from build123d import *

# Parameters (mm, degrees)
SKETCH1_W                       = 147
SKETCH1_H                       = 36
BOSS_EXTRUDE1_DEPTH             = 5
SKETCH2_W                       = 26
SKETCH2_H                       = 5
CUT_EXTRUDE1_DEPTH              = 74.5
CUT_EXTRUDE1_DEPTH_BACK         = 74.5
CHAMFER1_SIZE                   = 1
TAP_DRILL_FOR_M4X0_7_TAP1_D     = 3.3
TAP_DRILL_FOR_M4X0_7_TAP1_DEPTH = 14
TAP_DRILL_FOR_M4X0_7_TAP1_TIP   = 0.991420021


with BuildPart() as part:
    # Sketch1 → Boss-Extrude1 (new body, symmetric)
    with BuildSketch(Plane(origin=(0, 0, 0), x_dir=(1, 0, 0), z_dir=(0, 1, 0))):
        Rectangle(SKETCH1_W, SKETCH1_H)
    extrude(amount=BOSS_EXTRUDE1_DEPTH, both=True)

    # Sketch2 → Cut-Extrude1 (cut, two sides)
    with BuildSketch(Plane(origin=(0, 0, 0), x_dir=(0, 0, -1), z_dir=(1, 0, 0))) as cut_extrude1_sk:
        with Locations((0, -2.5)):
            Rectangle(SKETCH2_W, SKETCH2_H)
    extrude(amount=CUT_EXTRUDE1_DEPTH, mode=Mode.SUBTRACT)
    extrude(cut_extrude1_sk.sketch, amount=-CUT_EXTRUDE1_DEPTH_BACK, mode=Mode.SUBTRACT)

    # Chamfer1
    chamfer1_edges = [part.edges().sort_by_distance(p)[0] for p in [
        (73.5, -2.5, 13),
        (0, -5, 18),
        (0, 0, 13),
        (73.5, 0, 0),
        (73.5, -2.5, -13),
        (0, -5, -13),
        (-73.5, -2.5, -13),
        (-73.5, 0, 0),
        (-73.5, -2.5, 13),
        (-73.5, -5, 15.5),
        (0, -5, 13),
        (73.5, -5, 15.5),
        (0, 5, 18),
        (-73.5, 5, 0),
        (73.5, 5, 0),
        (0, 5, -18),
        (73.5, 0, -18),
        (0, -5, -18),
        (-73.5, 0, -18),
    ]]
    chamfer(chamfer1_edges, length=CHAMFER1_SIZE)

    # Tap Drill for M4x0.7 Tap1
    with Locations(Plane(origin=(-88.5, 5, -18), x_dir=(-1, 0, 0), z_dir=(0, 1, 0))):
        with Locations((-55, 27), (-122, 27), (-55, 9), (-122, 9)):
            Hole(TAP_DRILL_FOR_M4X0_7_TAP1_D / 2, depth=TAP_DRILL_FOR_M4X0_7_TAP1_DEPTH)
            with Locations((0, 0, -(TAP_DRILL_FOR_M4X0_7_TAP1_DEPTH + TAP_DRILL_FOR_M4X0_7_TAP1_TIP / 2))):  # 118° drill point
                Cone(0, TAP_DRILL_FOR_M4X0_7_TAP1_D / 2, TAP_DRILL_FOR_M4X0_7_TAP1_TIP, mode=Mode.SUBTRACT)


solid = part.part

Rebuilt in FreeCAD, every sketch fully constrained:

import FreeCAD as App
import Part
import Sketcher
from FreeCAD import Vector
Q = App.Units.Quantity


def edges_at(feature, points):
    """Names of the edges that pass closest to the given points."""
    edges = feature.Shape.Edges
    near = lambda p: min(range(len(edges)), key=lambda i: edges[i].distToShape(Part.Vertex(*p))[0])
    return sorted({f"Edge{near(p) + 1}" for p in points})

doc = App.newDocument("Part")
params = doc.addObject("Spreadsheet::Sheet", "Params")
for row, (alias, value) in enumerate([
    ("sketch1_width", "147 mm"),
    ("sketch1_height", "36 mm"),
    ("pad1_length", "10 mm"),
    ("sketch2_width", "5 mm"),
    ("sketch2_height", "26 mm"),
    ("chamfer_size", "1 mm"),
    ("sketch3_diameter", "3.3 mm"),
    ("hole_diameter", "3.3 mm"),
    ("hole_depth", "14 mm"),
], start=1):
    params.set(f"A{row}", alias)
    params.set(f"B{row}", "=" + value)
    params.setAlias(f"B{row}", alias)

body = doc.addObject("PartDesign::Body", "Body")

sketch1 = body.newObject("Sketcher::SketchObject", "Sketch")
sketch1.AttachmentSupport = (doc.getObject("XZ_Plane"), [""])
sketch1.MapMode = "FlatFace"
sketch1.addGeometry(Part.LineSegment(Vector(-74, -18, 0), Vector(-74, 18, 0)), False)
sketch1.addGeometry(Part.LineSegment(Vector(-74, 18, 0), Vector(74, 18, 0)), False)
sketch1.addGeometry(Part.LineSegment(Vector(74, 18, 0), Vector(74, -18, 0)), False)
sketch1.addGeometry(Part.LineSegment(Vector(74, -18, 0), Vector(-74, -18, 0)), False)
sketch1.addConstraint(Sketcher.Constraint("Coincident", 0, 2, 1, 1))
sketch1.addConstraint(Sketcher.Constraint("Coincident", 1, 2, 2, 1))
sketch1.addConstraint(Sketcher.Constraint("Coincident", 2, 2, 3, 1))
sketch1.addConstraint(Sketcher.Constraint("Coincident", 3, 2, 0, 1))
sketch1.addConstraint(Sketcher.Constraint("Vertical", 0))
sketch1.addConstraint(Sketcher.Constraint("Horizontal", 1))
sketch1.addConstraint(Sketcher.Constraint("Vertical", 2))
sketch1.addConstraint(Sketcher.Constraint("Horizontal", 3))
sketch1.addConstraint(Sketcher.Constraint("Symmetric", 0, 2, 2, 2, -1, 1))
sketch1.addConstraint(Sketcher.Constraint("DistanceX", 1, 1, 1, 2, Q("147 mm")))
sketch1.addConstraint(Sketcher.Constraint("DistanceY", 0, 1, 0, 2, Q("36 mm")))
sketch1.setExpression("Constraints[9]", "Params.sketch1_width")
sketch1.setExpression("Constraints[10]", "Params.sketch1_height")
pad1 = body.newObject("PartDesign::Pad", "Pad")
pad1.Profile = sketch1
pad1.setExpression("Length", "Params.pad1_length")
pad1.Midplane = True

sketch2 = body.newObject("Sketcher::SketchObject", "Sketch001")
sketch2.AttachmentSupport = (doc.getObject("YZ_Plane"), [""])
sketch2.MapMode = "FlatFace"
sketch2.addGeometry(Part.LineSegment(Vector(0, 13, 0), Vector(-5, 13, 0)), False)
sketch2.addGeometry(Part.LineSegment(Vector(-5, 13, 0), Vector(-5, -13, 0)), False)
sketch2.addGeometry(Part.LineSegment(Vector(-5, -13, 0), Vector(0, -13, 0)), False)
sketch2.addGeometry(Part.LineSegment(Vector(0, -13, 0), Vector(0, 13, 0)), False)
sketch2.addConstraint(Sketcher.Constraint("Coincident", 0, 2, 1, 1))
sketch2.addConstraint(Sketcher.Constraint("Coincident", 1, 2, 2, 1))
sketch2.addConstraint(Sketcher.Constraint("Coincident", 2, 2, 3, 1))
sketch2.addConstraint(Sketcher.Constraint("Coincident", 3, 2, 0, 1))
sketch2.addConstraint(Sketcher.Constraint("Horizontal", 0))
sketch2.addConstraint(Sketcher.Constraint("Vertical", 1))
sketch2.addConstraint(Sketcher.Constraint("Horizontal", 2))
sketch2.addConstraint(Sketcher.Constraint("Vertical", 3))
sketch2.addConstraint(Sketcher.Constraint("Symmetric", 2, 2, 3, 2, -1, 1))
sketch2.addConstraint(Sketcher.Constraint("DistanceX", 0, 2, 0, 1, Q("5 mm")))
sketch2.addConstraint(Sketcher.Constraint("DistanceY", 1, 2, 1, 1, Q("26 mm")))
sketch2.setExpression("Constraints[9]", "Params.sketch2_width")
sketch2.setExpression("Constraints[10]", "Params.sketch2_height")
pocket1 = body.newObject("PartDesign::Pocket", "Pocket")
pocket1.Profile = sketch2
pocket1.Type = "ThroughAll"
pocket1.Midplane = True
doc.recompute()

chamfer = body.newObject("PartDesign::Chamfer", "Chamfer")
chamfer.Base = (pocket1, edges_at(pocket1, [
    (73.5, -2.5, 13),
    (0, -5, 18),
    (0, 0, 13),
    (73.5, 0, 0),
    (73.5, -2.5, -13),
    (0, -5, -13),
    (-73.5, -2.5, -13),
    (-73.5, 0, 0),
    (-73.5, -2.5, 13),
    (-73.5, -5, 15.5),
    (0, -5, 13),
    (73.5, -5, 15.5),
    (0, 5, 18),
    (-73.5, 5, 0),
    (73.5, 5, 0),
    (0, 5, -18),
    (73.5, 0, -18),
    (0, -5, -18),
    (-73.5, 0, -18),
]))
chamfer.setExpression("Size", "Params.chamfer_size")

sketch3 = body.newObject("Sketcher::SketchObject", "Sketch002")
sketch3.AttachmentSupport = (doc.getObject("XZ_Plane"), [""])
sketch3.MapMode = "FlatFace"
sketch3.AttachmentOffset = App.Placement(Vector(0, 0, -5), App.Rotation())
sketch3.addGeometry(Part.Circle(Vector(-33.5, 9, 0), Vector(0, 0, 1), 1.6), False)
sketch3.addGeometry(Part.Circle(Vector(33.5, 9, 0), Vector(0, 0, 1), 1.6), False)
sketch3.addGeometry(Part.Circle(Vector(-33.5, -9, 0), Vector(0, 0, 1), 1.6), False)
sketch3.addGeometry(Part.Circle(Vector(33.5, -9, 0), Vector(0, 0, 1), 1.6), False)
sketch3.addConstraint(Sketcher.Constraint("Equal", 0, 1))
sketch3.addConstraint(Sketcher.Constraint("Equal", 1, 2))
sketch3.addConstraint(Sketcher.Constraint("Equal", 2, 3))
sketch3.addConstraint(Sketcher.Constraint("Symmetric", 1, 3, 2, 3, -1, 1))
sketch3.addConstraint(Sketcher.Constraint("Symmetric", 0, 3, 3, 3, -1, 1))
sketch3.addConstraint(Sketcher.Constraint("Symmetric", 0, 3, 1, 3, -2))
sketch3.addConstraint(Sketcher.Constraint("Diameter", 0, Q("3.3 mm")))
sketch3.addConstraint(Sketcher.Constraint("DistanceY", -1, 1, 0, 3, Q("9 mm")))
sketch3.addConstraint(Sketcher.Constraint("DistanceX", 0, 3, 1, 3, Q("67 mm")))
sketch3.setExpression("Constraints[6]", "Params.sketch3_diameter")
doc.recompute()
hole = body.newObject("PartDesign::Hole", "Hole")
hole.Profile = sketch3
hole.ThreadType = "None"
hole.setExpression("Diameter", "Params.hole_diameter")
hole.DepthType = "Dimension"
hole.setExpression("Depth", "Params.hole_depth")
hole.DrillPoint = "Angled"
hole.DrillPointAngle = 118
hole.Reversed = True

doc.recompute()
